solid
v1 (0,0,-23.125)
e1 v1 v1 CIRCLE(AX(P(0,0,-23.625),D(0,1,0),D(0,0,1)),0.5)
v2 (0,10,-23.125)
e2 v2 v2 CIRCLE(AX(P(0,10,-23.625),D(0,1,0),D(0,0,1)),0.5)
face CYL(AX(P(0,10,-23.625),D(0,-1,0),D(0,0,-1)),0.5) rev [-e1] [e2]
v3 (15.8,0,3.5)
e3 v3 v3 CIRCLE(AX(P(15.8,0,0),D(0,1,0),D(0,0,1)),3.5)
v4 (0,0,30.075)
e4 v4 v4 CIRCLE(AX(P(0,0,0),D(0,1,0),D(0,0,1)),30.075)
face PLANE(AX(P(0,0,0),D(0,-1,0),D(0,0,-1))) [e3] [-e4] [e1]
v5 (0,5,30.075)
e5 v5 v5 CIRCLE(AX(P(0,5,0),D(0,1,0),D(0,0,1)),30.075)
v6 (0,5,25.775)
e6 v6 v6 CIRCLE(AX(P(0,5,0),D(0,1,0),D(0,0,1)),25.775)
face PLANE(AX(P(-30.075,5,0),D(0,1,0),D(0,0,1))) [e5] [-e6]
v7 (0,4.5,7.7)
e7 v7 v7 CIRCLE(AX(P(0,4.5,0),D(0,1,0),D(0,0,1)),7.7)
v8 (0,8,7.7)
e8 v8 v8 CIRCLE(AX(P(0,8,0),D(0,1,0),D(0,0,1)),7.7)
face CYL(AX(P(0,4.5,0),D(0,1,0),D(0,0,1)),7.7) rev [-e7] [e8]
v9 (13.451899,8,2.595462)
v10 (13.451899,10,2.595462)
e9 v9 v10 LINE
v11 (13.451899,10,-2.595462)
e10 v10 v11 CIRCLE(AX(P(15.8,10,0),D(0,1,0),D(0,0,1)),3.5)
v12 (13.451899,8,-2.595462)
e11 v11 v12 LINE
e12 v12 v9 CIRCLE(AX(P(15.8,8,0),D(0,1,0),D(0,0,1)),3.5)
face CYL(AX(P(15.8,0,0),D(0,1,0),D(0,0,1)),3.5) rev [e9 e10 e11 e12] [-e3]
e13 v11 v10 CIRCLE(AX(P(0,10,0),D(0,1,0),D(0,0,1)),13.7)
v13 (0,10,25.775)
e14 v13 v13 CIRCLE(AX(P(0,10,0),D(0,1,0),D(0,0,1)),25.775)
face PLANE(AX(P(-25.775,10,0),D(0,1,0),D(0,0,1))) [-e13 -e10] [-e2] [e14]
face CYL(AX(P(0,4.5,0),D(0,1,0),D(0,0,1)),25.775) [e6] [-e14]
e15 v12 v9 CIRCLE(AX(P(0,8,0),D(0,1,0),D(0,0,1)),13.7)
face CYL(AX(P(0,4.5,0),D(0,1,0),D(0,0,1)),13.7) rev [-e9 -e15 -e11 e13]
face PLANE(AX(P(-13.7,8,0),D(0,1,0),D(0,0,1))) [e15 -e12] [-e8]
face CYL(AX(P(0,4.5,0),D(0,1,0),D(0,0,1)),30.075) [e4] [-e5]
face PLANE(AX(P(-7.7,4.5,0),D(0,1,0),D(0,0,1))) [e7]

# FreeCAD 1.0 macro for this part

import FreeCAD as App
import Part
import Sketcher
Q = App.Units.Quantity


def add_polygon(sketch, points):
    """Adds a closed chain of lines whose ends are joined by coincident constraints."""
    first, n = sketch.GeometryCount, len(points)
    for a, b in zip(points, points[1:] + points[:1]):
        sketch.addGeometry(Part.LineSegment(App.Vector(*a, 0), App.Vector(*b, 0)), False)
    for i in range(n):
        sketch.addConstraint(Sketcher.Constraint("Coincident", first + i, 2, first + (i + 1) % n, 1))

doc = App.newDocument("Part")
body = doc.addObject("PartDesign::Body", "Body")

sketch1 = doc.addObject("Sketcher::SketchObject", "Sketch")
body.addObject(sketch1)
sketch1.AttachmentSupport = (doc.XY_Plane, [""])
sketch1.MapMode = "FlatFace"
add_polygon(sketch1, [(-30.1, 0), (0, 0), (0, 4.5), (-7.7, 4.5), (-7.7, 8), (-13.7, 8), (-13.7, 10), (-25.8, 10), (-25.8, 5), (-30.1, 5)])
sketch1.addConstraint(Sketcher.Constraint("Horizontal", 0))
sketch1.addConstraint(Sketcher.Constraint("Vertical", 1))
sketch1.addConstraint(Sketcher.Constraint("Horizontal", 2))
sketch1.addConstraint(Sketcher.Constraint("Vertical", 3))
sketch1.addConstraint(Sketcher.Constraint("Horizontal", 4))
sketch1.addConstraint(Sketcher.Constraint("Vertical", 5))
sketch1.addConstraint(Sketcher.Constraint("Horizontal", 6))
sketch1.addConstraint(Sketcher.Constraint("Vertical", 7))
sketch1.addConstraint(Sketcher.Constraint("Horizontal", 8))
sketch1.addConstraint(Sketcher.Constraint("Vertical", 9))
sketch1.addConstraint(Sketcher.Constraint("Coincident", 0, 2, -1, 1))
sketch1.addConstraint(Sketcher.Constraint("Equal", 7, 9))
sketch1.addConstraint(Sketcher.Constraint("DistanceX", 4, 2, 4, 1, Q("6 mm")))
sketch1.addConstraint(Sketcher.Constraint("DistanceY", 5, 1, 5, 2, Q("2 mm")))
sketch1.addConstraint(Sketcher.Constraint("DistanceY", 7, 2, 7, 1, Q("5 mm")))
sketch1.addConstraint(Sketcher.Constraint("DistanceX", 2, 2, 2, 1, Q("7.7 mm")))
sketch1.addConstraint(Sketcher.Constraint("DistanceX", 8, 2, 8, 1, Q("4.3 mm")))
sketch1.addConstraint(Sketcher.Constraint("DistanceY", 1, 1, 1, 2, Q("4.5 mm")))
sketch1.addConstraint(Sketcher.Constraint("DistanceX", 0, 1, 0, 2, Q("30.075 mm")))
revolution = doc.addObject("PartDesign::Revolution", "Revolution")
body.addObject(revolution)
revolution.Profile = sketch1
revolution.ReferenceAxis = (sketch1, ["V_Axis"])
revolution.Angle = 360

sketch2 = doc.addObject("Sketcher::SketchObject", "Sketch001")
body.addObject(sketch2)
sketch2.AttachmentSupport = (doc.XZ_Plane, [""])
sketch2.MapMode = "FlatFace"
sketch2.AttachmentOffset = App.Placement(App.Vector(0, 0, -10), App.Rotation())
sketch2.addGeometry(Part.Circle(App.Vector(15.8, 0, 0), App.Vector(0, 0, 1), 3.5), False)
sketch2.addConstraint(Sketcher.Constraint("PointOnObject", 0, 3, -1))
sketch2.addConstraint(Sketcher.Constraint("Diameter", 0, Q("7 mm")))
sketch2.addConstraint(Sketcher.Constraint("DistanceX", -1, 1, 0, 3, Q("15.8 mm")))
pocket1 = doc.addObject("PartDesign::Pocket", "Pocket")
body.addObject(pocket1)
pocket1.Profile = sketch2
pocket1.Length = 10
pocket1.Reversed = True

sketch3 = doc.addObject("Sketcher::SketchObject", "Sketch002")
body.addObject(sketch3)
sketch3.AttachmentSupport = (doc.XZ_Plane, [""])
sketch3.MapMode = "FlatFace"
sketch3.AttachmentOffset = App.Placement(App.Vector(0, 0, -5), App.Rotation())
sketch3.addGeometry(Part.Circle(App.Vector(0, -23.6, 0), App.Vector(0, 0, 1), 0.5), False)
sketch3.addConstraint(Sketcher.Constraint("PointOnObject", 0, 3, -2))
sketch3.addConstraint(Sketcher.Constraint("Diameter", 0, Q("1 mm")))
sketch3.addConstraint(Sketcher.Constraint("DistanceY", 0, 3, -1, 1, Q("23.625 mm")))
pocket2 = doc.addObject("PartDesign::Pocket", "Pocket001")
body.addObject(pocket2)
pocket2.Profile = sketch3
pocket2.Length = 10
pocket2.Midplane = True

doc.recompute()
